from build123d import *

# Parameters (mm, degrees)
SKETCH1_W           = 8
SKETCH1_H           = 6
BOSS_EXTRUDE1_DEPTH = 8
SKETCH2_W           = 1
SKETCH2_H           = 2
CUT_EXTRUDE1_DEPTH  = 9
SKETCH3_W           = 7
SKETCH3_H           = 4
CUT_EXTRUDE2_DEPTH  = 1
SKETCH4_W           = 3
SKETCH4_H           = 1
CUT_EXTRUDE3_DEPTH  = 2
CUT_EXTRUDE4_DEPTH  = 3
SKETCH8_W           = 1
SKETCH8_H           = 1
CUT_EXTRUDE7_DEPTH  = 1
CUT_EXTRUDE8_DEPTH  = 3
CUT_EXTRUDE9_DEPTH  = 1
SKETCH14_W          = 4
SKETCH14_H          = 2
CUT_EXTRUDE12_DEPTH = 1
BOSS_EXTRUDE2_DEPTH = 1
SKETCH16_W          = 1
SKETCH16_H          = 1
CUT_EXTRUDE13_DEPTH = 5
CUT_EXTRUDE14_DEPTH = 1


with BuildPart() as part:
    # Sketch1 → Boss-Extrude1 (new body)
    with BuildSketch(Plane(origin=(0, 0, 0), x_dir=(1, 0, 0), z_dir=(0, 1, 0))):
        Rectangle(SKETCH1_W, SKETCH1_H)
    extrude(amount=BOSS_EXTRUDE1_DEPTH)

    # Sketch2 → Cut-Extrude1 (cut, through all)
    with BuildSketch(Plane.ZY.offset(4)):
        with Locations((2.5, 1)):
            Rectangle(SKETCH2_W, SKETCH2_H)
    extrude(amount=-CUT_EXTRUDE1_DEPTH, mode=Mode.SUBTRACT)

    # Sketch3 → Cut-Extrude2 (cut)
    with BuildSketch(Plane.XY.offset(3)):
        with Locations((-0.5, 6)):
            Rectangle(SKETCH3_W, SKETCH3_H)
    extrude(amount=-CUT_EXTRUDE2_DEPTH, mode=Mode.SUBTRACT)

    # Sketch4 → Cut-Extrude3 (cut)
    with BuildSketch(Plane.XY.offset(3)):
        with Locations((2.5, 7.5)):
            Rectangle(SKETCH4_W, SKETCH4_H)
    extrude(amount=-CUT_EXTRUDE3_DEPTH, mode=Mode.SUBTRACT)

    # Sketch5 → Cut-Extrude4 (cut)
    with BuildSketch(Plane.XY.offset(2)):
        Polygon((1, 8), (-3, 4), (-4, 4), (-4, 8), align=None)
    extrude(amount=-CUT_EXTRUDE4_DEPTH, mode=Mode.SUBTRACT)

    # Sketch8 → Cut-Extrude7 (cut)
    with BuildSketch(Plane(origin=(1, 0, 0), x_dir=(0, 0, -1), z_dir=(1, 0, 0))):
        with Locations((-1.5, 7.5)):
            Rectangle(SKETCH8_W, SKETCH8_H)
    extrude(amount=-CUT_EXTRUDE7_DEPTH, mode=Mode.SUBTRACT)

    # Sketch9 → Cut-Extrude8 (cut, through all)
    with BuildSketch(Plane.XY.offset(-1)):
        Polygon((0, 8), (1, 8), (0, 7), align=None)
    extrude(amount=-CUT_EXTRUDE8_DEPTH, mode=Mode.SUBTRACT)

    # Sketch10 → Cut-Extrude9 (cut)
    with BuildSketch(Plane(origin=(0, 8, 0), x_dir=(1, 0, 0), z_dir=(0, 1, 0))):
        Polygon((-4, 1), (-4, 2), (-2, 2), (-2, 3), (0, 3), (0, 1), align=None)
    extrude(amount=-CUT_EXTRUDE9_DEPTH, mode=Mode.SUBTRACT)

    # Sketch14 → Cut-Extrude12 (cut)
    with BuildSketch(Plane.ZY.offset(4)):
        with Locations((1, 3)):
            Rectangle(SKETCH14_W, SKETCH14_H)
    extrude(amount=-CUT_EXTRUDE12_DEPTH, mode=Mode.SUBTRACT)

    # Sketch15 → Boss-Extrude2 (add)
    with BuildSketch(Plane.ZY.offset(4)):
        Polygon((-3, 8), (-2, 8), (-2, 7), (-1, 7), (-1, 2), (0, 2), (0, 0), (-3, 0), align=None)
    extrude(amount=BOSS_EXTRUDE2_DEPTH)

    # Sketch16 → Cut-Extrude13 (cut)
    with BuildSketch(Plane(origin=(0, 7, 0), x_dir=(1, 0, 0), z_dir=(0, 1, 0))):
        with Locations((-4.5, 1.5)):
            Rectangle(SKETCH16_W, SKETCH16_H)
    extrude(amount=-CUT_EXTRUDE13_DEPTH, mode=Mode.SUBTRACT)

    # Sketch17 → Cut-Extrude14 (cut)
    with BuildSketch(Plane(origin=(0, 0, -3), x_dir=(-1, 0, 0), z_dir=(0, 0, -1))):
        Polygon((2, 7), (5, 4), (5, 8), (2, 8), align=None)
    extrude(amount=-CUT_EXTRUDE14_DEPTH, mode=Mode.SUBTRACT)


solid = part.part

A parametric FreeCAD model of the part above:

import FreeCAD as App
import Part
import Sketcher
from FreeCAD import Vector
Q = App.Units.Quantity


def add_polygon(sketch, points):
    """Adds a closed chain of lines whose ends are joined by coincident constraints."""
    first, n = sketch.GeometryCount, len(points)
    for a, b in zip(points, points[1:] + points[:1]):
        sketch.addGeometry(Part.LineSegment(App.Vector(*a, 0), App.Vector(*b, 0)), False)
    for i in range(n):
        sketch.addConstraint(Sketcher.Constraint("Coincident", first + i, 2, first + (i + 1) % n, 1))

doc = App.newDocument("Part")
body = doc.addObject("PartDesign::Body", "Body")

# Sketch on XZ plane
sketch1 = body.newObject("Sketcher::SketchObject", "Sketch")
sketch1.AttachmentSupport = (doc.getObject("XZ_Plane"), [""])
sketch1.MapMode = "FlatFace"
add_polygon(sketch1, [(-4, -3), (-4, 3), (4, 3), (4, -3)])  # lines 0-3
sketch1.addConstraint([
    Sketcher.Constraint("Vertical", 0),
    Sketcher.Constraint("Horizontal", 1),
    Sketcher.Constraint("Vertical", 2),
    Sketcher.Constraint("Horizontal", 3),
    Sketcher.Constraint("Symmetric", 0, 2, 2, 2, -1, 1),
    Sketcher.Constraint("DistanceX", 1, 1, 1, 2, Q("8 mm")),
    Sketcher.Constraint("DistanceY", 0, 1, 0, 2, Q("6 mm")),
])
pad1 = body.newObject("PartDesign::Pad", "Pad")
pad1.Profile = sketch1
pad1.Length = 8
pad1.Reversed = True

# Sketch on YZ plane
sketch2 = body.newObject("Sketcher::SketchObject", "Sketch001")
sketch2.AttachmentSupport = (doc.getObject("YZ_Plane"), [""])
sketch2.MapMode = "FlatFace"
sketch2.AttachmentOffset = App.Placement(Vector(0, 0, -4), App.Rotation())
add_polygon(sketch2, [(2, 2), (0, 2), (0, 3), (2, 3)])  # lines 0-3
sketch2.addConstraint([
    Sketcher.Constraint("Horizontal", 0),
    Sketcher.Constraint("Vertical", 1),
    Sketcher.Constraint("Horizontal", 2),
    Sketcher.Constraint("Vertical", 3),
    Sketcher.Constraint("PointOnObject", 0, 2, -2),
    Sketcher.Constraint("DistanceX", 0, 2, 0, 1, Q("2 mm")),
    Sketcher.Constraint("DistanceY", 1, 1, 1, 2, Q("1 mm")),
    Sketcher.Constraint("DistanceY", -1, 1, 0, 2, Q("2 mm")),
])
pocket1 = body.newObject("PartDesign::Pocket", "Pocket")
pocket1.Profile = sketch2
pocket1.Type = "ThroughAll"
pocket1.Reversed = True

# Sketch on XY plane
sketch3 = body.newObject("Sketcher::SketchObject", "Sketch002")
sketch3.AttachmentSupport = (doc.getObject("XY_Plane"), [""])
sketch3.MapMode = "FlatFace"
sketch3.AttachmentOffset = App.Placement(Vector(0, 0, 3), App.Rotation())
add_polygon(sketch3, [(-4, 8), (-4, 4), (3, 4), (3, 8)])  # lines 0-3
sketch3.addConstraint([
    Sketcher.Constraint("Vertical", 0),
    Sketcher.Constraint("Horizontal", 1),
    Sketcher.Constraint("Vertical", 2),
    Sketcher.Constraint("Horizontal", 3),
    Sketcher.Constraint("DistanceX", 1, 1, 1, 2, Q("7 mm")),
    Sketcher.Constraint("DistanceY", 0, 2, 0, 1, Q("4 mm")),
    Sketcher.Constraint("DistanceX", 0, 2, -1, 1, Q("4 mm")),
    Sketcher.Constraint("DistanceY", -1, 1, 0, 2, Q("4 mm")),
])
pocket2 = body.newObject("PartDesign::Pocket", "Pocket001")
pocket2.Profile = sketch3
pocket2.Length = 1

# Sketch on XY plane
sketch4 = body.newObject("Sketcher::SketchObject", "Sketch003")
sketch4.AttachmentSupport = (doc.getObject("XY_Plane"), [""])
sketch4.MapMode = "FlatFace"
sketch4.AttachmentOffset = App.Placement(Vector(0, 0, 3), App.Rotation())
add_polygon(sketch4, [(1, 8), (1, 7), (4, 7), (4, 8)])  # lines 0-3
sketch4.addConstraint([
    Sketcher.Constraint("Vertical", 0),
    Sketcher.Constraint("Horizontal", 1),
    Sketcher.Constraint("Vertical", 2),
    Sketcher.Constraint("Horizontal", 3),
    Sketcher.Constraint("DistanceX", 1, 1, 1, 2, Q("3 mm")),
    Sketcher.Constraint("DistanceY", 0, 2, 0, 1, Q("1 mm")),
    Sketcher.Constraint("DistanceX", -1, 1, 0, 2, Q("1 mm")),
    Sketcher.Constraint("DistanceY", -1, 1, 0, 2, Q("7 mm")),
])
pocket3 = body.newObject("PartDesign::Pocket", "Pocket002")
pocket3.Profile = sketch4
pocket3.Length = 2

# Sketch on XY plane
sketch5 = body.newObject("Sketcher::SketchObject", "Sketch004")
sketch5.AttachmentSupport = (doc.getObject("XY_Plane"), [""])
sketch5.MapMode = "FlatFace"
sketch5.AttachmentOffset = App.Placement(Vector(0, 0, 2), App.Rotation())
add_polygon(sketch5, [(-3, 4), (1, 8), (-4, 8), (-4, 4)])  # lines 0-3
sketch5.addConstraint([
    Sketcher.Constraint("Horizontal", 1),
    Sketcher.Constraint("Vertical", 2),
    Sketcher.Constraint("Horizontal", 3),
    Sketcher.Constraint("DistanceX", 1, 2, 1, 1, Q("5 mm")),
    Sketcher.Constraint("DistanceX", 3, 1, 3, 2, Q("1 mm")),
    Sketcher.Constraint("DistanceY", 2, 2, 2, 1, Q("4 mm")),
    Sketcher.Constraint("DistanceX", -1, 1, 0, 2, Q("1 mm")),
    Sketcher.Constraint("DistanceY", -1, 1, 0, 2, Q("8 mm")),
])
pocket4 = body.newObject("PartDesign::Pocket", "Pocket003")
pocket4.Profile = sketch5
pocket4.Length = 3

# Sketch on YZ plane
sketch6 = body.newObject("Sketcher::SketchObject", "Sketch005")
sketch6.AttachmentSupport = (doc.getObject("YZ_Plane"), [""])
sketch6.MapMode = "FlatFace"
sketch6.AttachmentOffset = App.Placement(Vector(0, 0, 1), App.Rotation())
add_polygon(sketch6, [(8, 2), (7, 2), (7, 1), (8, 1)])  # lines 0-3
sketch6.addConstraint([
    Sketcher.Constraint("Horizontal", 0),
    Sketcher.Constraint("Vertical", 1),
    Sketcher.Constraint("Horizontal", 2),
    Sketcher.Constraint("Vertical", 3),
    Sketcher.Constraint("Equal", 2, 1),
    Sketcher.Constraint("DistanceX", 0, 2, 0, 1, Q("1 mm")),
    Sketcher.Constraint("DistanceX", -1, 1, 0, 2, Q("7 mm")),
    Sketcher.Constraint("DistanceY", -1, 1, 0, 2, Q("2 mm")),
])
pocket5 = body.newObject("PartDesign::Pocket", "Pocket004")
pocket5.Profile = sketch6
pocket5.Length = 1

# Sketch on XY plane
sketch7 = body.newObject("Sketcher::SketchObject", "Sketch006")
sketch7.AttachmentSupport = (doc.getObject("XY_Plane"), [""])
sketch7.MapMode = "FlatFace"
sketch7.AttachmentOffset = App.Placement(Vector(0, 0, -1), App.Rotation())
add_polygon(sketch7, [(1, 8), (0, 8), (0, 7)])  # lines 0-2
sketch7.addConstraint([
    Sketcher.Constraint("Horizontal", 0),
    Sketcher.Constraint("Vertical", 1),
    Sketcher.Constraint("PointOnObject", 0, 2, -2),
    Sketcher.Constraint("Equal", 0, 1),
    Sketcher.Constraint("DistanceX", 0, 2, 0, 1, Q("1 mm")),
    Sketcher.Constraint("DistanceY", -1, 1, 0, 2, Q("8 mm")),
])
pocket6 = body.newObject("PartDesign::Pocket", "Pocket005")
pocket6.Profile = sketch7
pocket6.Type = "ThroughAll"

# Sketch on XZ plane
sketch8 = body.newObject("Sketcher::SketchObject", "Sketch007")
sketch8.AttachmentSupport = (doc.getObject("XZ_Plane"), [""])
sketch8.MapMode = "FlatFace"
sketch8.AttachmentOffset = App.Placement(Vector(0, 0, -8), App.Rotation())
add_polygon(sketch8, [(-4, -2), (-4, -1), (0, -1), (0, -3), (-2, -3), (-2, -2)])  # lines 0-5
sketch8.addConstraint([
    Sketcher.Constraint("Vertical", 0),
    Sketcher.Constraint("Horizontal", 1),
    Sketcher.Constraint("Vertical", 2),
    Sketcher.Constraint("Horizontal", 3),
    Sketcher.Constraint("Vertical", 4),
    Sketcher.Constraint("Horizontal", 5),
    Sketcher.Constraint("PointOnObject", 1, 2, -2),
    Sketcher.Constraint("Equal", 3, 5),
    Sketcher.Constraint("Equal", 5, 2),
    Sketcher.Constraint("Equal", 0, 4),
    Sketcher.Constraint("DistanceX", 1, 1, 1, 2, Q("4 mm")),
    Sketcher.Constraint("DistanceY", 0, 2, -1, 1, Q("1 mm")),
])
pocket7 = body.newObject("PartDesign::Pocket", "Pocket006")
pocket7.Profile = sketch8
pocket7.Length = 1
pocket7.Reversed = True

# Sketch on YZ plane
sketch9 = body.newObject("Sketcher::SketchObject", "Sketch008")
sketch9.AttachmentSupport = (doc.getObject("YZ_Plane"), [""])
sketch9.MapMode = "FlatFace"
sketch9.AttachmentOffset = App.Placement(Vector(0, 0, -4), App.Rotation())
add_polygon(sketch9, [(4, -1), (2, -1), (2, 3), (4, 3)])  # lines 0-3
sketch9.addConstraint([
    Sketcher.Constraint("Horizontal", 0),
    Sketcher.Constraint("Vertical", 1),
    Sketcher.Constraint("Horizontal", 2),
    Sketcher.Constraint("Vertical", 3),
    Sketcher.Constraint("DistanceX", 0, 2, 0, 1, Q("2 mm")),
    Sketcher.Constraint("DistanceY", 1, 1, 1, 2, Q("4 mm")),
    Sketcher.Constraint("DistanceX", -1, 1, 0, 2, Q("2 mm")),
    Sketcher.Constraint("DistanceY", 0, 2, -1, 1, Q("1 mm")),
])
pocket8 = body.newObject("PartDesign::Pocket", "Pocket007")
pocket8.Profile = sketch9
pocket8.Length = 1
pocket8.Reversed = True

# Sketch on YZ plane
sketch10 = body.newObject("Sketcher::SketchObject", "Sketch009")
sketch10.AttachmentSupport = (doc.getObject("YZ_Plane"), [""])
sketch10.MapMode = "FlatFace"
sketch10.AttachmentOffset = App.Placement(Vector(0, 0, -4), App.Rotation())
add_polygon(sketch10, [(8, -2), (8, -3), (0, -3), (0, 0), (2, 0), (2, -1), (7, -1), (7, -2)])  # lines 0-7
sketch10.addConstraint([
    Sketcher.Constraint("Vertical", 0),
    Sketcher.Constraint("Horizontal", 1),
    Sketcher.Constraint("Vertical", 2),
    Sketcher.Constraint("Horizontal", 3),
    Sketcher.Constraint("Vertical", 4),
    Sketcher.Constraint("Horizontal", 5),
    Sketcher.Constraint("Vertical", 6),
    Sketcher.Constraint("Horizontal", 7),
    Sketcher.Constraint("Coincident", 2, 2, -1, 1),
    Sketcher.Constraint("Equal", 7, 0),
    Sketcher.Constraint("Equal", 0, 4),
    Sketcher.Constraint("Equal", 4, 6),
    Sketcher.Constraint("DistanceX", 1, 2, 1, 1, Q("8 mm")),
    Sketcher.Constraint("DistanceX", 3, 1, 3, 2, Q("2 mm")),
    Sketcher.Constraint("DistanceX", 5, 1, 5, 2, Q("5 mm")),
])
pad2 = body.newObject("PartDesign::Pad", "Pad001")
pad2.Profile = sketch10
pad2.Length = 1
pad2.Reversed = True

# Sketch on XZ plane
sketch11 = body.newObject("Sketcher::SketchObject", "Sketch010")
sketch11.AttachmentSupport = (doc.getObject("XZ_Plane"), [""])
sketch11.MapMode = "FlatFace"
sketch11.AttachmentOffset = App.Placement(Vector(0, 0, -7), App.Rotation())
add_polygon(sketch11, [(-5, -2), (-5, -1), (-4, -1), (-4, -2)])  # lines 0-3
sketch11.addConstraint([
    Sketcher.Constraint("Vertical", 0),
    Sketcher.Constraint("Horizontal", 1),
    Sketcher.Constraint("Vertical", 2),
    Sketcher.Constraint("Horizontal", 3),
    Sketcher.Constraint("Equal", 3, 0),
    Sketcher.Constraint("DistanceX", 1, 1, 1, 2, Q("1 mm")),
    Sketcher.Constraint("DistanceX", 0, 2, -1, 1, Q("5 mm")),
    Sketcher.Constraint("DistanceY", 0, 2, -1, 1, Q("1 mm")),
])
pocket9 = body.newObject("PartDesign::Pocket", "Pocket008")
pocket9.Profile = sketch11
pocket9.Length = 5
pocket9.Reversed = True

# Sketch on XY plane
sketch12 = body.newObject("Sketcher::SketchObject", "Sketch011")
sketch12.AttachmentSupport = (doc.getObject("XY_Plane"), [""])
sketch12.MapMode = "FlatFace"
sketch12.AttachmentOffset = App.Placement(Vector(0, 0, -3), App.Rotation())
add_polygon(sketch12, [(-2, 7), (-5, 4), (-5, 8), (-2, 8)])  # lines 0-3
sketch12.addConstraint([
    Sketcher.Constraint("Vertical", 1),
    Sketcher.Constraint("Horizontal", 2),
    Sketcher.Constraint("Vertical", 3),
    Sketcher.Constraint("DistanceX", 2, 1, 2, 2, Q("3 mm")),
    Sketcher.Constraint("DistanceY", 1, 1, 1, 2, Q("4 mm")),
    Sketcher.Constraint("DistanceY", 3, 2, 3, 1, Q("1 mm")),
    Sketcher.Constraint("DistanceX", 0, 2, -1, 1, Q("5 mm")),
    Sketcher.Constraint("DistanceY", -1, 1, 0, 2, Q("4 mm")),
])
pocket10 = body.newObject("PartDesign::Pocket", "Pocket009")
pocket10.Profile = sketch12
pocket10.Length = 1
pocket10.Reversed = True

doc.recompute()
